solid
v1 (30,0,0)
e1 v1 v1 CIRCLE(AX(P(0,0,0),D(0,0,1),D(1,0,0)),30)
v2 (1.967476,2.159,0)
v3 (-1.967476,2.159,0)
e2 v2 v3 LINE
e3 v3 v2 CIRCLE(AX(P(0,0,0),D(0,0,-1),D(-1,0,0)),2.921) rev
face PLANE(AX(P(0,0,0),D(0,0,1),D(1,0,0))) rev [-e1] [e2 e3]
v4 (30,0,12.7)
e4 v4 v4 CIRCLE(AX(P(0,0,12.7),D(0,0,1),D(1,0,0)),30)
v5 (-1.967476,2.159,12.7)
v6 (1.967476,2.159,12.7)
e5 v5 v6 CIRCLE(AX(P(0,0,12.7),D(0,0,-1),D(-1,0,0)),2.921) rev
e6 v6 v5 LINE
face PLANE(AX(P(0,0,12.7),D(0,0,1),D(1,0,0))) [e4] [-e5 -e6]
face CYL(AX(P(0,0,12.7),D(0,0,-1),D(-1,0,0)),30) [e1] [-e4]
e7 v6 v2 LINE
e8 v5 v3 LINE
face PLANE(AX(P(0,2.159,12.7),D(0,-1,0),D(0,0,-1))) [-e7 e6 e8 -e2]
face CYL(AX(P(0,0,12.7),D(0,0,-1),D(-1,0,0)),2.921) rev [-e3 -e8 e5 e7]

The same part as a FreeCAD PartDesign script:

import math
import FreeCAD as App
import Part
import Sketcher
Q = App.Units.Quantity

doc = App.newDocument("Part")
body = doc.addObject("PartDesign::Body", "Body")

# Sketch on XY plane
sketch1 = doc.addObject("Sketcher::SketchObject", "Sketch")
body.addObject(sketch1)
sketch1.AttachmentSupport = (doc.XY_Plane, [""])
sketch1.MapMode = "FlatFace"
sketch1.addGeometry(Part.Circle(App.Vector(0, 0, 0), App.Vector(0, 0, 1), 30), False)
sketch1.addConstraint([
    Sketcher.Constraint("Coincident", 0, 3, -1, 1),
    Sketcher.Constraint("Diameter", 0, Q("60 mm")),
])
pad1 = doc.addObject("PartDesign::Pad", "Pad")
body.addObject(pad1)
pad1.Profile = sketch1
pad1.Length = Q("0.5 in")

# Sketch on XY plane
sketch2 = doc.addObject("Sketcher::SketchObject", "Sketch001")
body.addObject(sketch2)
sketch2.AttachmentSupport = (doc.XY_Plane, [""])
sketch2.MapMode = "FlatFace"
sketch2.addGeometry([
    Part.ArcOfCircle(Part.Circle(App.Vector(0, 0, 0), App.Vector(0, 0, 1), 2.9), math.radians(132), math.radians(408)),
    Part.LineSegment(App.Vector(-2, 2.2, 0), App.Vector(2, 2.2, 0)),
], False)
sketch2.addConstraint([
    Sketcher.Constraint("Coincident", 0, 1, 1, 1),
    Sketcher.Constraint("Coincident", 1, 2, 0, 2),
    Sketcher.Constraint("Horizontal", 1),
    Sketcher.Constraint("Coincident", 0, 3, -1, 1),
    Sketcher.Constraint("Radius", 0, Q("0.115 in")),
    Sketcher.Constraint("DistanceY", -1, 1, 0, 1, Q("0.085 in")),
])
pocket1 = doc.addObject("PartDesign::Pocket", "Pocket")
body.addObject(pocket1)
pocket1.Profile = sketch2
pocket1.Type = "ThroughAll"
pocket1.Reversed = True

doc.recompute()
